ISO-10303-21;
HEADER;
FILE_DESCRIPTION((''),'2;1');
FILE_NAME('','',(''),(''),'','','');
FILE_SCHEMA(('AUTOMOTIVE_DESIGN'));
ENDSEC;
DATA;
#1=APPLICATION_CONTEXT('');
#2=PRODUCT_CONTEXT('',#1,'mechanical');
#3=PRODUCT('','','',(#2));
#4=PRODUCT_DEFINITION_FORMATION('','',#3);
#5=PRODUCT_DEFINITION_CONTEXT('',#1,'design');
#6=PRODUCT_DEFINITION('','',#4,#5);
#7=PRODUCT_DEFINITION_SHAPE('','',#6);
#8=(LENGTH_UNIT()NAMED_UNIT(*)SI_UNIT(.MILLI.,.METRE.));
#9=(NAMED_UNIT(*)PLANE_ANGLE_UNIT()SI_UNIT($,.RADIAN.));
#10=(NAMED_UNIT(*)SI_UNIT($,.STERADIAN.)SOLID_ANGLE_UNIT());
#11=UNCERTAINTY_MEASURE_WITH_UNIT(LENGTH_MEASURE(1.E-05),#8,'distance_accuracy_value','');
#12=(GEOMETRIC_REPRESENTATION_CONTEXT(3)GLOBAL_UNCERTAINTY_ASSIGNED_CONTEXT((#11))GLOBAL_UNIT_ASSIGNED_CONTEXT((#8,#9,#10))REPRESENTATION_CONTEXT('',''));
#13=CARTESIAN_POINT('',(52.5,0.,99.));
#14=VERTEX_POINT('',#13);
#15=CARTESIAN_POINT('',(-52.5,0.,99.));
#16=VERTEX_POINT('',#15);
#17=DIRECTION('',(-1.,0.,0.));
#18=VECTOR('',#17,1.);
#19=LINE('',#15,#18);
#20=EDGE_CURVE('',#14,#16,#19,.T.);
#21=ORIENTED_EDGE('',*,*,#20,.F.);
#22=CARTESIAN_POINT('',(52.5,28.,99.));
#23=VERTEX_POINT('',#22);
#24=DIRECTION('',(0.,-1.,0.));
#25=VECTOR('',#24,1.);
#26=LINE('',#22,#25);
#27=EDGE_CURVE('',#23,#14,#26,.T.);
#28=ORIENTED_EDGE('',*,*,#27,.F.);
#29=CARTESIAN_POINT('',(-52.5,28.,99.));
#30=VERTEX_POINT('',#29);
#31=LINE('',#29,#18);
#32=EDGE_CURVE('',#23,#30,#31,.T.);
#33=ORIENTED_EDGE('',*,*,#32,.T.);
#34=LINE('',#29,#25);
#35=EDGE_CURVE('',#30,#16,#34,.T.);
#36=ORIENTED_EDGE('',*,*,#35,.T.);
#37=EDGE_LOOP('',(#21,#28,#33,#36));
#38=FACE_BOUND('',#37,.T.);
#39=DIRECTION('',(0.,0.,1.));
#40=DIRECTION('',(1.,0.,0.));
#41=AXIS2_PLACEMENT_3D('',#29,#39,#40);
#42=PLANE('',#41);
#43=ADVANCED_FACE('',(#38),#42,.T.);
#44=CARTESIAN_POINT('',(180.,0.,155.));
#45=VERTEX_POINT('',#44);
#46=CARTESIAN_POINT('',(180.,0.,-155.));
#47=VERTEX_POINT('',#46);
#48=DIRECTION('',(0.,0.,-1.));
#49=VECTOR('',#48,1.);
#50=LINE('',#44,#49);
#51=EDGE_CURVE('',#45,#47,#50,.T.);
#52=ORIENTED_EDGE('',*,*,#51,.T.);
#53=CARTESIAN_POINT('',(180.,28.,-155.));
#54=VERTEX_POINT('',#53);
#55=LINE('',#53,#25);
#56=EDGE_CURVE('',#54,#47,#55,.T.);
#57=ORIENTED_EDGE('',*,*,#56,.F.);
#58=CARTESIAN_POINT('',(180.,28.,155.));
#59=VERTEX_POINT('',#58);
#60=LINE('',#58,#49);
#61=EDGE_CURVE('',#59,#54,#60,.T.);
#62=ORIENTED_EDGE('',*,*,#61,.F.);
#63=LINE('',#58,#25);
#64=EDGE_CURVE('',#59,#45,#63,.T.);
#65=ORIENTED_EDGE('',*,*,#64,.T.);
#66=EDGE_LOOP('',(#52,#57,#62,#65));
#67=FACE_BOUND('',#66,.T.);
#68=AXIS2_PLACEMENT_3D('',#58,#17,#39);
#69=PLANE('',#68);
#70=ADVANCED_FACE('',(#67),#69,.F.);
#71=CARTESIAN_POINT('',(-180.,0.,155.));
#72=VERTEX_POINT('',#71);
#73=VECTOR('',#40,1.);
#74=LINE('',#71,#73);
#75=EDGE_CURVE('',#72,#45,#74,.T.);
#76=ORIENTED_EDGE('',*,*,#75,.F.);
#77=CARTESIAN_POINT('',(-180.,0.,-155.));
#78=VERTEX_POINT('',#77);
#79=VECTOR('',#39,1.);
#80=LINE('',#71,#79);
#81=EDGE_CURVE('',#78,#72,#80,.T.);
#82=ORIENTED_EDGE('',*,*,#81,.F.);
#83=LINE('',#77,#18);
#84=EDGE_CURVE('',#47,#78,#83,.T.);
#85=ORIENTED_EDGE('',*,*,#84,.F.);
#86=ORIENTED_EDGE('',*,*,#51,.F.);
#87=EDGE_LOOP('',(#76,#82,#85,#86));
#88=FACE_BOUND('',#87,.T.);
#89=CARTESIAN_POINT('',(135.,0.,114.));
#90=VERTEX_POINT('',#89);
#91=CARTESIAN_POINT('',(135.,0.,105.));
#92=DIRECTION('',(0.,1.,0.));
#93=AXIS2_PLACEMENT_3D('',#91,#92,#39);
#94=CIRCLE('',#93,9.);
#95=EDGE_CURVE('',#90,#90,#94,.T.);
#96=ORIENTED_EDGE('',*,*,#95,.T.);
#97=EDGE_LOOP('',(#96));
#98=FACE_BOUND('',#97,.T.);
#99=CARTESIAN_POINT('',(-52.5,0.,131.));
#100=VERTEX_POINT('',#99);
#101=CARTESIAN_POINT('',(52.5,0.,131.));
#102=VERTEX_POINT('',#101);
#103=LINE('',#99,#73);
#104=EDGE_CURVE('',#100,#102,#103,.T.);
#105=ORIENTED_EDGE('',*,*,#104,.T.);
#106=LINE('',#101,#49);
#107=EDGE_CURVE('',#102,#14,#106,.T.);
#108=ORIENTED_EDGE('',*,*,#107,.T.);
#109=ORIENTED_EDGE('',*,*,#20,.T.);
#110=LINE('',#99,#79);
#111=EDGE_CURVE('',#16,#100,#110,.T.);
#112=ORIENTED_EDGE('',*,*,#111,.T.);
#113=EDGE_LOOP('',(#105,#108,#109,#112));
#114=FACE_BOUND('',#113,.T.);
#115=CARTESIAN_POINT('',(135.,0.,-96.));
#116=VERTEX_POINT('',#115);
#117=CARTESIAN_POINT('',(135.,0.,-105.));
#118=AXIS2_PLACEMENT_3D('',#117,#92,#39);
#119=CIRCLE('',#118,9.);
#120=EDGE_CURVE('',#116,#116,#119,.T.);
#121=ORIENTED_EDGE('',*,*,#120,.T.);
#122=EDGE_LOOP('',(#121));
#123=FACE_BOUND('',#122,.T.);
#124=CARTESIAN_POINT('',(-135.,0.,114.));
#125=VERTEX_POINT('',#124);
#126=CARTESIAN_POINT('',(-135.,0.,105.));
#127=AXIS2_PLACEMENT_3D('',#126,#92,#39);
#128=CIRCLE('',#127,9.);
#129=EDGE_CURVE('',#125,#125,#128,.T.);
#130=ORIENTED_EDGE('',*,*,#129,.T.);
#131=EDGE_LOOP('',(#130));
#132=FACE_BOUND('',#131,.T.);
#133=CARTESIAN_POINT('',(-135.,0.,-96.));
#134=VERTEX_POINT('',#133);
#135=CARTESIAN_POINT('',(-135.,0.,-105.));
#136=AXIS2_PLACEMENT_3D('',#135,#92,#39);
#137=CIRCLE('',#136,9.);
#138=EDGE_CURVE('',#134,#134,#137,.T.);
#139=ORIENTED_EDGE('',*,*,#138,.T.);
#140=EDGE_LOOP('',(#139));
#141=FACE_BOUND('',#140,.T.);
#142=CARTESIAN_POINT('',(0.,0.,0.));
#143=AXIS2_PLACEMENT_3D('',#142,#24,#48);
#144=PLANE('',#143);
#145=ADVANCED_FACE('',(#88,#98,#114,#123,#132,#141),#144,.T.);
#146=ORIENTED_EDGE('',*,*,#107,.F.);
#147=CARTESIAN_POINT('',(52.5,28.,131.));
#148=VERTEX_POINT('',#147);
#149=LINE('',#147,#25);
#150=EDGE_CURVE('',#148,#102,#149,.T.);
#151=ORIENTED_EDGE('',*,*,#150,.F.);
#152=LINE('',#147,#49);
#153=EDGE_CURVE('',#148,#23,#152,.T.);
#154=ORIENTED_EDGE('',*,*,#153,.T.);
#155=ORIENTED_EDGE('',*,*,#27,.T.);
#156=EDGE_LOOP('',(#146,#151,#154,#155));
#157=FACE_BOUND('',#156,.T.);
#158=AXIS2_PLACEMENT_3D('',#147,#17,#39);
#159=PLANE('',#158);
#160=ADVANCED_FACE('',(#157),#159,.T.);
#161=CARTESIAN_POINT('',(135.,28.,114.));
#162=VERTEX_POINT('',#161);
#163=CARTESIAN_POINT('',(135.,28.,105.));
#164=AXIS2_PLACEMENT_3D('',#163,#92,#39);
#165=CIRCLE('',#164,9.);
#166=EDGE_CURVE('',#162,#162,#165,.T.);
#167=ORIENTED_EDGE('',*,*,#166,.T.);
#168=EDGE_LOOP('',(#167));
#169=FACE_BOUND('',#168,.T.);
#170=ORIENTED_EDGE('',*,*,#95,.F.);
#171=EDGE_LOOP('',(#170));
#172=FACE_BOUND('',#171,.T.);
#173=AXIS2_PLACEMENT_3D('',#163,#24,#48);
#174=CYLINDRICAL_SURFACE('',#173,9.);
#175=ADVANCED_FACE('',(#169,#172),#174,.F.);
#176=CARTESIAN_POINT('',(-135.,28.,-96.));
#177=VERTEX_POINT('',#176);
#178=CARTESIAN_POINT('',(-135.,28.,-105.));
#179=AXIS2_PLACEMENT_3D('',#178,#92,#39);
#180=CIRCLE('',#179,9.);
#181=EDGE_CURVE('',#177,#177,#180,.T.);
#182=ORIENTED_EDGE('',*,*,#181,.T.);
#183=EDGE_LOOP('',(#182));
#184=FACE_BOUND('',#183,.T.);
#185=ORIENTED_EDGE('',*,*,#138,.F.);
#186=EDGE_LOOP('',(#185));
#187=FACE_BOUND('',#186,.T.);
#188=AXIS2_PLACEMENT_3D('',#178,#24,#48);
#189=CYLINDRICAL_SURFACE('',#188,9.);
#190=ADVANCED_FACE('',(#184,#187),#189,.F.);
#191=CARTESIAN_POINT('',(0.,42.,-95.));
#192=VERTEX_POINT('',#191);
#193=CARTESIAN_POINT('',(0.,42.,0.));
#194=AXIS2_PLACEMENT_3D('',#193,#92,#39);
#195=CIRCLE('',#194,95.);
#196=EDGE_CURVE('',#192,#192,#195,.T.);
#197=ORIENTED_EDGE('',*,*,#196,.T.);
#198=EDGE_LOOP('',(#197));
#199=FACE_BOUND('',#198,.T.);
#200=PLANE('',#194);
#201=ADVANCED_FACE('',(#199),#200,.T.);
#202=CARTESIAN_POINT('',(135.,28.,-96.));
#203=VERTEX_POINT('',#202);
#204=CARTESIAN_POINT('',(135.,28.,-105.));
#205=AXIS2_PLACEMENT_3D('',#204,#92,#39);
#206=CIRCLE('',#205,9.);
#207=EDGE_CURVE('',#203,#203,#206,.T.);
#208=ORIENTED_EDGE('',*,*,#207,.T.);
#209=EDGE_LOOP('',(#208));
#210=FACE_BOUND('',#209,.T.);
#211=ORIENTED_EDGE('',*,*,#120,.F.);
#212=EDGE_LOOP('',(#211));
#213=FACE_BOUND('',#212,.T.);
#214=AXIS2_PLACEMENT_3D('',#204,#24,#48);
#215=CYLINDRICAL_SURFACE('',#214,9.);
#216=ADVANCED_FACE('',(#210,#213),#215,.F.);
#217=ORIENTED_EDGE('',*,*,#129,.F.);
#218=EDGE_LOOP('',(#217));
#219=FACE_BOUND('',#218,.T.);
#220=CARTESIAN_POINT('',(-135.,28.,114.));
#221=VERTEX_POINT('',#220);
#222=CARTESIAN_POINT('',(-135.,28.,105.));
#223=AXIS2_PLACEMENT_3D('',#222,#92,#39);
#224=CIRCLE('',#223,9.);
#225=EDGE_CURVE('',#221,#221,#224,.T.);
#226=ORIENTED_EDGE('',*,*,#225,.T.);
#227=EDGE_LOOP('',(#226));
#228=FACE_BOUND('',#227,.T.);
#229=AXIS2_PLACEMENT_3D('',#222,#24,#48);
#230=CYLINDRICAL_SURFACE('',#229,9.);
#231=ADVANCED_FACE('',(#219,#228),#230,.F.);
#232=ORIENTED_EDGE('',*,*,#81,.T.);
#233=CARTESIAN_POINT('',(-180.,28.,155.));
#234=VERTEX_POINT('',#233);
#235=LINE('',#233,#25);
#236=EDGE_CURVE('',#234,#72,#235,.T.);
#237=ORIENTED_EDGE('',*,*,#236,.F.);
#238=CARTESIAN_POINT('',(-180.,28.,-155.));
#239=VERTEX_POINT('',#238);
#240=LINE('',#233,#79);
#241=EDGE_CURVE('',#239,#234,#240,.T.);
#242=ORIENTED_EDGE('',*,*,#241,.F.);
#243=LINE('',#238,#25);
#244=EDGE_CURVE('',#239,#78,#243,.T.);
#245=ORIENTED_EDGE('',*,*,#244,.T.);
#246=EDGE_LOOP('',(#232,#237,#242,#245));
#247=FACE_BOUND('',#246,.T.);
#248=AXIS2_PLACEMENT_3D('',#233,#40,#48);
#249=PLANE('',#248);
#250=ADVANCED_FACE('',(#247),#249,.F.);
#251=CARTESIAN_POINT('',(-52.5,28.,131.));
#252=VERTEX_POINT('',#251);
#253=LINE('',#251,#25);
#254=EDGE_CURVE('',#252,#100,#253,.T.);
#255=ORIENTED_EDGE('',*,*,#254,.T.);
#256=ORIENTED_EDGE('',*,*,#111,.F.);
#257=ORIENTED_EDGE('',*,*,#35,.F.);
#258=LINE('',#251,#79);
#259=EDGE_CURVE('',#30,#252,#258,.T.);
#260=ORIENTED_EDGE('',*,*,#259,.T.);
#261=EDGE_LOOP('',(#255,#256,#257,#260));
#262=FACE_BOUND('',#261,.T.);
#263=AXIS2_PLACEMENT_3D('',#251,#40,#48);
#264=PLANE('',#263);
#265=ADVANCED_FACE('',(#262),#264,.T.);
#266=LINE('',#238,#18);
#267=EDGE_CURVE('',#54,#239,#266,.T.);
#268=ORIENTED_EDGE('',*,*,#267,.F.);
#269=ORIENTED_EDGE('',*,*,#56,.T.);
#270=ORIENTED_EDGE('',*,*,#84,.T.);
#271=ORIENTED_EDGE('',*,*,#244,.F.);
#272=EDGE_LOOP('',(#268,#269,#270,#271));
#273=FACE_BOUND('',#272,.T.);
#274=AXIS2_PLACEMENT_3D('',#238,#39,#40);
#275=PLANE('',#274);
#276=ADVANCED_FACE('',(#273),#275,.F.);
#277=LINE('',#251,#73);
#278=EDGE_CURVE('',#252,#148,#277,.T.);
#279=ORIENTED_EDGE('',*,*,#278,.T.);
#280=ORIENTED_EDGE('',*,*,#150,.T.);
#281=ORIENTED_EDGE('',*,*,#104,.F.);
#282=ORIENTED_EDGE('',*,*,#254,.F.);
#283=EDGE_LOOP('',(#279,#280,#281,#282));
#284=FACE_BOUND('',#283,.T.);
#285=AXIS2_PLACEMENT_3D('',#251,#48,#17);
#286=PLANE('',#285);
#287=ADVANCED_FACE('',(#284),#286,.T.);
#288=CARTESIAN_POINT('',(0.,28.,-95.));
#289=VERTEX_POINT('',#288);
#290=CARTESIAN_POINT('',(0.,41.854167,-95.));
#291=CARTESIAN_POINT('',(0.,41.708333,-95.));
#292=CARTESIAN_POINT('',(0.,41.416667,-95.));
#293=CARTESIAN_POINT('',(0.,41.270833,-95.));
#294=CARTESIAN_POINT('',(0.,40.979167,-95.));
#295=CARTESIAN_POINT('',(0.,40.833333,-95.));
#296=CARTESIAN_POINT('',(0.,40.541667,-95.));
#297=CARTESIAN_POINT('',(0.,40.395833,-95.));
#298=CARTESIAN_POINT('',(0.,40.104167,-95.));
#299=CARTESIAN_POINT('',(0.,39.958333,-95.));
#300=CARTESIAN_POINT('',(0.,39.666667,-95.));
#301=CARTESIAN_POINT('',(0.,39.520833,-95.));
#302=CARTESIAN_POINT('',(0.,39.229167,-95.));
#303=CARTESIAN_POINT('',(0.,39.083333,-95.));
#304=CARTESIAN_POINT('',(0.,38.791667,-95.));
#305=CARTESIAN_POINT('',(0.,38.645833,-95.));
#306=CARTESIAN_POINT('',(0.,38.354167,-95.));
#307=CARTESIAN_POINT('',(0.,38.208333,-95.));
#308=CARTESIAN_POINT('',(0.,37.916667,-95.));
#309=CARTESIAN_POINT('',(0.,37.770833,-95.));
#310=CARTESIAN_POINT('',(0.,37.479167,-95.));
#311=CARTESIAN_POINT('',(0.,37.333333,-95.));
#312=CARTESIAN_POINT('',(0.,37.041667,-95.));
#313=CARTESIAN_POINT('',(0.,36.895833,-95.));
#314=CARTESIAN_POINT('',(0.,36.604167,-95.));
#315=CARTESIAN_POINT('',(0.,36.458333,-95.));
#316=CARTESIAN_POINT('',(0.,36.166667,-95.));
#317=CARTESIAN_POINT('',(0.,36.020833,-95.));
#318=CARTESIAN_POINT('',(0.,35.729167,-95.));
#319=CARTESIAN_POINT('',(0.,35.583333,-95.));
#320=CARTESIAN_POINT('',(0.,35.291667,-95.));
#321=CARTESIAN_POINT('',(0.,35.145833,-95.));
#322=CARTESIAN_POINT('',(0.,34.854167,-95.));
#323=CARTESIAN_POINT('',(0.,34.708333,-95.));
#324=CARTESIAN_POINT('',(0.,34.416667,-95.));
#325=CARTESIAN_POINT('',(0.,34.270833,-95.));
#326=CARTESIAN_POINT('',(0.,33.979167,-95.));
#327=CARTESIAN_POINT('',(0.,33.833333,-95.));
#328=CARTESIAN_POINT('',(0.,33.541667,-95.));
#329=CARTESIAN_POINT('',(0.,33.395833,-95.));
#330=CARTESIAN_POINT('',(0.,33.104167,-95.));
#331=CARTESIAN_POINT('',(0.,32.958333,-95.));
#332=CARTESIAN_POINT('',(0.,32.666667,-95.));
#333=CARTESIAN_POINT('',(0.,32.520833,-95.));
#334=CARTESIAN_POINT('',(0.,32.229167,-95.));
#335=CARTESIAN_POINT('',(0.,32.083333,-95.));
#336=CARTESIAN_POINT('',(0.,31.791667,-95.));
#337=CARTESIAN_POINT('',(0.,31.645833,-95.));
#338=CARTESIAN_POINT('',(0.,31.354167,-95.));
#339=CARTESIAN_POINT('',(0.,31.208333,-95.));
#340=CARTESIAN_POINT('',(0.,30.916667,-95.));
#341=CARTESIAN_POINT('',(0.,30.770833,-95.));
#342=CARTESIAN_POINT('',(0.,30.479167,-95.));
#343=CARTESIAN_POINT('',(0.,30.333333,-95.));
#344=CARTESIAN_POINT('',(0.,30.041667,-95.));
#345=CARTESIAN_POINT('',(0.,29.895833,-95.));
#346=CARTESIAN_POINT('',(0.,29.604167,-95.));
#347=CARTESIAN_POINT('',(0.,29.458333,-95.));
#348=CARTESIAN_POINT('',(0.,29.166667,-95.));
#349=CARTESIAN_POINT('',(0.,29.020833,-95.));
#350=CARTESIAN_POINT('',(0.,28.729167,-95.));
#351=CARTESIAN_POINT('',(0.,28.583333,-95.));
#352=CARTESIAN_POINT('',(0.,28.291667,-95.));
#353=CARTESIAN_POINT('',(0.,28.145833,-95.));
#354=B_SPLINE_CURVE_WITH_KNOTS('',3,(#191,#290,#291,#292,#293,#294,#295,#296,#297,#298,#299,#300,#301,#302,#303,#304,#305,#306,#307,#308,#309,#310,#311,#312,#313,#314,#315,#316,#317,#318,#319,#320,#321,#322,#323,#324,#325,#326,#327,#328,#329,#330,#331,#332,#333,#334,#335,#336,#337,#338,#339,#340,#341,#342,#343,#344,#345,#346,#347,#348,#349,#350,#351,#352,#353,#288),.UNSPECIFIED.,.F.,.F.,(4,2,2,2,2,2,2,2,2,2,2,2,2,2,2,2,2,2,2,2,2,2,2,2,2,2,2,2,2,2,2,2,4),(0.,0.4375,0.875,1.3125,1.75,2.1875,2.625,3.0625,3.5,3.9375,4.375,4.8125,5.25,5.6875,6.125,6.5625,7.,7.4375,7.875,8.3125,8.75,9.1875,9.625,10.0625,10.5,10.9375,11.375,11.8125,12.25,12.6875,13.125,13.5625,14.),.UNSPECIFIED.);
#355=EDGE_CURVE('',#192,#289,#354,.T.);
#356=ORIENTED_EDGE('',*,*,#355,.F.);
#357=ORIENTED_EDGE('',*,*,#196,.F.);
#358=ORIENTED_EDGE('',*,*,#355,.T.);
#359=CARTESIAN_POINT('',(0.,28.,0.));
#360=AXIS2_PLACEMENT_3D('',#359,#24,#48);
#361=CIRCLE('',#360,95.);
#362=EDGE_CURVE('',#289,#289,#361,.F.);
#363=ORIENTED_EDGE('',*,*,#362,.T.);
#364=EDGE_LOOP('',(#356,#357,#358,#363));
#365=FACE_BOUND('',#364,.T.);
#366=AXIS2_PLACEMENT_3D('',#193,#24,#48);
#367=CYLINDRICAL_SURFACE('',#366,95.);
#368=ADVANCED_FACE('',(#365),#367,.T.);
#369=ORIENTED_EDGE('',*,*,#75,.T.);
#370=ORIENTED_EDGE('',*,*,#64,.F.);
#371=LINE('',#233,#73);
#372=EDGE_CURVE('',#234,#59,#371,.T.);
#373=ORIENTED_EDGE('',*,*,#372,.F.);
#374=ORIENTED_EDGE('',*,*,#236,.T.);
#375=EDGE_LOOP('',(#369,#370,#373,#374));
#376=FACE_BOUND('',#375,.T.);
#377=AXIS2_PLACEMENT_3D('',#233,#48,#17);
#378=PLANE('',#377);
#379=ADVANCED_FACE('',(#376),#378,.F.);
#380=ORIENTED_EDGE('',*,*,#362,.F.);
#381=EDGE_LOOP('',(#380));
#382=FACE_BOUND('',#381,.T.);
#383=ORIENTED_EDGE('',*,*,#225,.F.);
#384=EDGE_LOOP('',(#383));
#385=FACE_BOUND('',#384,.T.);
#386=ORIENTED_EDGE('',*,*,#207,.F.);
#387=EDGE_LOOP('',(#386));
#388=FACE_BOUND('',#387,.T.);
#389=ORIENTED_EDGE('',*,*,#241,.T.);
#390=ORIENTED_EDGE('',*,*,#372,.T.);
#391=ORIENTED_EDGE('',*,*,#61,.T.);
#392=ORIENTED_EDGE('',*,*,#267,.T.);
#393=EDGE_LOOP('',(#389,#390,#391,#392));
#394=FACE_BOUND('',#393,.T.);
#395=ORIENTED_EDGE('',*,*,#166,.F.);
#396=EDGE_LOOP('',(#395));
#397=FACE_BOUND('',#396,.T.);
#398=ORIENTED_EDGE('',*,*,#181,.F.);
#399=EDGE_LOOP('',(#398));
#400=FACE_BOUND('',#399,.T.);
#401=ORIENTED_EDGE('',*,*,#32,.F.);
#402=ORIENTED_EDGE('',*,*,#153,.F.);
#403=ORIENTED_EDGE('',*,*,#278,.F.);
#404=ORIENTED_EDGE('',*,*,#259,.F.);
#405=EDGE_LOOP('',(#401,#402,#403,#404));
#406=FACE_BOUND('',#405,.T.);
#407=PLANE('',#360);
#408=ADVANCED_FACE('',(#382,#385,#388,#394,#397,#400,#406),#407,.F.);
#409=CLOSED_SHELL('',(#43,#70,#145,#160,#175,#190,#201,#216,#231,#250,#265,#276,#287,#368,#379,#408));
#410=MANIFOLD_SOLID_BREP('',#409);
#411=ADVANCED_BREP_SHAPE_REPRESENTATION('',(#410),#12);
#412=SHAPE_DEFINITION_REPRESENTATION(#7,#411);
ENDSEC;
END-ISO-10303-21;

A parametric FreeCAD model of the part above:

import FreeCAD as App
import Part
import Sketcher
from FreeCAD import Vector

doc = App.newDocument("Part")
body = doc.addObject("PartDesign::Body", "Body")

# Sketch on XZ plane
sketch1 = body.newObject("Sketcher::SketchObject", "Sketch")
sketch1.AttachmentSupport = (doc.getObject("XZ_Plane"), [""])
sketch1.MapMode = "FlatFace"
sketch1.addGeometry([
    Part.LineSegment(Vector(-180, -155, 0), Vector(-180, 155, 0)),  # 0
    Part.LineSegment(Vector(-180, 155, 0), Vector(180, 155, 0)),  # 1
    Part.LineSegment(Vector(180, 155, 0), Vector(180, -155, 0)),  # 2
    Part.LineSegment(Vector(180, -155, 0), Vector(-180, -155, 0)),  # 3
    Part.Circle(Vector(-135, 105, 0), Vector(0, 0, 1), 9),  # 4
    Part.LineSegment(Vector(52.5, 131, 0), Vector(-52.5, 131, 0)),  # 5
    Part.LineSegment(Vector(-52.5, 131, 0), Vector(-52.5, 99, 0)),  # 6
    Part.LineSegment(Vector(-52.5, 99, 0), Vector(52.5, 99, 0)),  # 7
    Part.LineSegment(Vector(52.5, 99, 0), Vector(52.5, 131, 0)),  # 8
    Part.Circle(Vector(135, 105, 0), Vector(0, 0, 1), 9),  # 9
    Part.Circle(Vector(-135, -105, 0), Vector(0, 0, 1), 9),  # 10
    Part.Circle(Vector(0, 0, 0), Vector(0, 0, 1), 62.5),  # 11
    Part.Circle(Vector(135, -105, 0), Vector(0, 0, 1), 9),  # 12
], False)
sketch1.addConstraint([
    Sketcher.Constraint("Coincident", 0, 2, 1, 1),
    Sketcher.Constraint("Coincident", 1, 2, 2, 1),
    Sketcher.Constraint("Coincident", 2, 2, 3, 1),
    Sketcher.Constraint("Coincident", 3, 2, 0, 1),
    Sketcher.Constraint("Coincident", 5, 2, 6, 1),
    Sketcher.Constraint("Coincident", 6, 2, 7, 1),
    Sketcher.Constraint("Coincident", 7, 2, 8, 1),
    Sketcher.Constraint("Coincident", 8, 2, 5, 1),
    Sketcher.Constraint("Vertical", 0),
    Sketcher.Constraint("Horizontal", 1),
    Sketcher.Constraint("Vertical", 2),
    Sketcher.Constraint("Horizontal", 3),
    Sketcher.Constraint("Horizontal", 5),
    Sketcher.Constraint("Vertical", 6),
    Sketcher.Constraint("Horizontal", 7),
    Sketcher.Constraint("Vertical", 8),
    Sketcher.Constraint("Coincident", 11, 3, -1, 1),
    Sketcher.Constraint("Equal", 4, 9),
    Sketcher.Constraint("Equal", 9, 10),
    Sketcher.Constraint("Equal", 10, 12),
    Sketcher.Constraint("Symmetric", 9, 3, 10, 3, -1, 1),
    Sketcher.Constraint("Symmetric", 4, 3, 12, 3, -1, 1),
    Sketcher.Constraint("Symmetric", 0, 2, 2, 2, -1, 1),
    Sketcher.Constraint("Symmetric", 4, 3, 9, 3, -2),
    Sketcher.Constraint("Diameter", 4, 18.0),
    Sketcher.Constraint("Diameter", 11, 125.0),
    Sketcher.Constraint("DistanceX", 1, 1, 1, 2, 360.0),
    Sketcher.Constraint("DistanceX", 5, 2, 5, 1, 105.0),
    Sketcher.Constraint("DistanceY", 0, 1, 0, 2, 310.0),
    Sketcher.Constraint("DistanceY", 6, 2, 6, 1, 32.0),
    Sketcher.Constraint("DistanceX", 4, 3, -1, 1, 135.0),
    Sketcher.Constraint("DistanceY", -1, 1, 4, 3, 105.0),
    Sketcher.Constraint("DistanceY", -1, 1, 5, 2, 131.0),
    Sketcher.Constraint("DistanceX", 5, 2, -1, 1, 52.5),
])
pad1 = body.newObject("PartDesign::Pad", "Pad")
pad1.Profile = sketch1
pad1.Length = 28
pad1.Reversed = True

# Sketch on XZ plane
sketch2 = body.newObject("Sketcher::SketchObject", "Sketch001")
sketch2.AttachmentSupport = (doc.getObject("XZ_Plane"), [""])
sketch2.MapMode = "FlatFace"
sketch2.addGeometry(Part.Circle(Vector(0, 0, 0), Vector(0, 0, 1), 95), False)
sketch2.addConstraint([
    Sketcher.Constraint("Coincident", 0, 3, -1, 1),
    Sketcher.Constraint("Diameter", 0, 190.0),
])
pad2 = body.newObject("PartDesign::Pad", "Pad001")
pad2.Profile = sketch2
pad2.Length = 42
pad2.Reversed = True

doc.recompute()
